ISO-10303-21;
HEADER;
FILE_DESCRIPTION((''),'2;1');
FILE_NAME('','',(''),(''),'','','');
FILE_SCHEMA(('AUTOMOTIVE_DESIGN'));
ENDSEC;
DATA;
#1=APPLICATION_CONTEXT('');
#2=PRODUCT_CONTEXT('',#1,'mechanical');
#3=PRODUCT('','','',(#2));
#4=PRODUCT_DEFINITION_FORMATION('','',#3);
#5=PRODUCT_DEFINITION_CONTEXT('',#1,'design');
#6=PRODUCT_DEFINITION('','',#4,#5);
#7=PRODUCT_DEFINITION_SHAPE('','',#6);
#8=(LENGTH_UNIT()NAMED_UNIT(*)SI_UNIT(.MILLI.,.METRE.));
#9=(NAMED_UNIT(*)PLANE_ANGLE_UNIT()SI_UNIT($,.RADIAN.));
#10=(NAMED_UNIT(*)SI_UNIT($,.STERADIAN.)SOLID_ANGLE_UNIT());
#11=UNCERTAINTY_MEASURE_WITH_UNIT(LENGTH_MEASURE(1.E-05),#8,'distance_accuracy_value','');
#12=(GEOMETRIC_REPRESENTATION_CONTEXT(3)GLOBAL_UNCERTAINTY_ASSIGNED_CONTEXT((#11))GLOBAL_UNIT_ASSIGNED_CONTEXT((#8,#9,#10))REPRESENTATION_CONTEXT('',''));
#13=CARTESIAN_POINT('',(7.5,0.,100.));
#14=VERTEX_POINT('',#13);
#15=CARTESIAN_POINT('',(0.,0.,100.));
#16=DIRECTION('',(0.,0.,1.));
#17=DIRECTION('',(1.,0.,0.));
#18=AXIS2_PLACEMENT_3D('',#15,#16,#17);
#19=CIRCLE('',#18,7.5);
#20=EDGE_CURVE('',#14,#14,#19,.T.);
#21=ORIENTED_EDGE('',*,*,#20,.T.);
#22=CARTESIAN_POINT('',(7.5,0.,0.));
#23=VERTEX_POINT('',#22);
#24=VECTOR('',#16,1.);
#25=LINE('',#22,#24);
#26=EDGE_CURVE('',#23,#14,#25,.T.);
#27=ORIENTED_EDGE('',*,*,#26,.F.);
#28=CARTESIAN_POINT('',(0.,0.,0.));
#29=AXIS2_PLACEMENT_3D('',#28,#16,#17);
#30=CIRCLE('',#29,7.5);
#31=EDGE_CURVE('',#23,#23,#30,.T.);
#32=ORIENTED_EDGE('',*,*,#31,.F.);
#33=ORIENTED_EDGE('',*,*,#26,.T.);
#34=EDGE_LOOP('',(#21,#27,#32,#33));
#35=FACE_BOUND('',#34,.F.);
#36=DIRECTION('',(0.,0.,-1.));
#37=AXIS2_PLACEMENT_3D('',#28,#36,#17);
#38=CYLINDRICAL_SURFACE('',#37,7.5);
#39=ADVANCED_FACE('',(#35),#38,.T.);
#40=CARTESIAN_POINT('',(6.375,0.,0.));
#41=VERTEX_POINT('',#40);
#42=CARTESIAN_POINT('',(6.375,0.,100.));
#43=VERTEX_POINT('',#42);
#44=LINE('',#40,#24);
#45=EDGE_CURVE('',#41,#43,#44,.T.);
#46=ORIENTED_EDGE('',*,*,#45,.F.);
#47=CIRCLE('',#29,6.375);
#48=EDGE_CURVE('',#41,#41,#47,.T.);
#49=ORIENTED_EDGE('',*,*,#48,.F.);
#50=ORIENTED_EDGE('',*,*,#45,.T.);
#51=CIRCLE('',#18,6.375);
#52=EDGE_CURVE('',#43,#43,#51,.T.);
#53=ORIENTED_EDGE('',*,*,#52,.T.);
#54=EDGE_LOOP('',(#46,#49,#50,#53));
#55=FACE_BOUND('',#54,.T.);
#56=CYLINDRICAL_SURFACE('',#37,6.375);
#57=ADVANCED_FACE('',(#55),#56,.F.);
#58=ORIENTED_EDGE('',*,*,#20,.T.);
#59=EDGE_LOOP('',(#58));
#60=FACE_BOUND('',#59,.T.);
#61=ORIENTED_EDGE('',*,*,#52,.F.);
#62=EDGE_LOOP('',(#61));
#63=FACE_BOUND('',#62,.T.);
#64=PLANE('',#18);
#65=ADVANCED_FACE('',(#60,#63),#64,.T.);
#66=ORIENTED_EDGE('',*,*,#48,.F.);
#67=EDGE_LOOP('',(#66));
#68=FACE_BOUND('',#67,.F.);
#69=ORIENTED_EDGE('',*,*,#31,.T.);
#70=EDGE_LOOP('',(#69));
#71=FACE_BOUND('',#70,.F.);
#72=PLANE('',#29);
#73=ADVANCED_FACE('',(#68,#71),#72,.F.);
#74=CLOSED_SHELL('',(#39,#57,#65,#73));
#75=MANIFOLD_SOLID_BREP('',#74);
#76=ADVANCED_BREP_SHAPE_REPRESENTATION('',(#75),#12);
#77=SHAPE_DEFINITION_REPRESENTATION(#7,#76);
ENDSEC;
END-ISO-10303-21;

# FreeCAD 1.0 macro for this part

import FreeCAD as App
import Part
import Sketcher

V = App.Vector

doc = App.newDocument("Part")
body = doc.addObject("PartDesign::Body", "Body")

# Sketch on XY plane
sketch1 = doc.addObject("Sketcher::SketchObject", "Sketch")
body.addObject(sketch1)
sketch1.AttachmentSupport = (doc.XY_Plane, [""])
sketch1.MapMode = "FlatFace"
sketch1.addGeometry(Part.Circle(V(0, 0, 0), V(0, 0, 1), 8), False)
sketch1.addGeometry(Part.Circle(V(0, 0, 0), V(0, 0, 1), 6), False)
sketch1.addConstraint(Sketcher.Constraint("Coincident", 0, 3, -1, 1))
sketch1.addConstraint(Sketcher.Constraint("Coincident", 1, 3, -1, 1))
sketch1.addConstraint(Sketcher.Constraint("Diameter", 0, 15.0))
sketch1.addConstraint(Sketcher.Constraint("Diameter", 1, 12.75))
pad1 = doc.addObject("PartDesign::Pad", "Pad")
body.addObject(pad1)
pad1.Profile = sketch1
pad1.Length = 100

doc.recompute()
